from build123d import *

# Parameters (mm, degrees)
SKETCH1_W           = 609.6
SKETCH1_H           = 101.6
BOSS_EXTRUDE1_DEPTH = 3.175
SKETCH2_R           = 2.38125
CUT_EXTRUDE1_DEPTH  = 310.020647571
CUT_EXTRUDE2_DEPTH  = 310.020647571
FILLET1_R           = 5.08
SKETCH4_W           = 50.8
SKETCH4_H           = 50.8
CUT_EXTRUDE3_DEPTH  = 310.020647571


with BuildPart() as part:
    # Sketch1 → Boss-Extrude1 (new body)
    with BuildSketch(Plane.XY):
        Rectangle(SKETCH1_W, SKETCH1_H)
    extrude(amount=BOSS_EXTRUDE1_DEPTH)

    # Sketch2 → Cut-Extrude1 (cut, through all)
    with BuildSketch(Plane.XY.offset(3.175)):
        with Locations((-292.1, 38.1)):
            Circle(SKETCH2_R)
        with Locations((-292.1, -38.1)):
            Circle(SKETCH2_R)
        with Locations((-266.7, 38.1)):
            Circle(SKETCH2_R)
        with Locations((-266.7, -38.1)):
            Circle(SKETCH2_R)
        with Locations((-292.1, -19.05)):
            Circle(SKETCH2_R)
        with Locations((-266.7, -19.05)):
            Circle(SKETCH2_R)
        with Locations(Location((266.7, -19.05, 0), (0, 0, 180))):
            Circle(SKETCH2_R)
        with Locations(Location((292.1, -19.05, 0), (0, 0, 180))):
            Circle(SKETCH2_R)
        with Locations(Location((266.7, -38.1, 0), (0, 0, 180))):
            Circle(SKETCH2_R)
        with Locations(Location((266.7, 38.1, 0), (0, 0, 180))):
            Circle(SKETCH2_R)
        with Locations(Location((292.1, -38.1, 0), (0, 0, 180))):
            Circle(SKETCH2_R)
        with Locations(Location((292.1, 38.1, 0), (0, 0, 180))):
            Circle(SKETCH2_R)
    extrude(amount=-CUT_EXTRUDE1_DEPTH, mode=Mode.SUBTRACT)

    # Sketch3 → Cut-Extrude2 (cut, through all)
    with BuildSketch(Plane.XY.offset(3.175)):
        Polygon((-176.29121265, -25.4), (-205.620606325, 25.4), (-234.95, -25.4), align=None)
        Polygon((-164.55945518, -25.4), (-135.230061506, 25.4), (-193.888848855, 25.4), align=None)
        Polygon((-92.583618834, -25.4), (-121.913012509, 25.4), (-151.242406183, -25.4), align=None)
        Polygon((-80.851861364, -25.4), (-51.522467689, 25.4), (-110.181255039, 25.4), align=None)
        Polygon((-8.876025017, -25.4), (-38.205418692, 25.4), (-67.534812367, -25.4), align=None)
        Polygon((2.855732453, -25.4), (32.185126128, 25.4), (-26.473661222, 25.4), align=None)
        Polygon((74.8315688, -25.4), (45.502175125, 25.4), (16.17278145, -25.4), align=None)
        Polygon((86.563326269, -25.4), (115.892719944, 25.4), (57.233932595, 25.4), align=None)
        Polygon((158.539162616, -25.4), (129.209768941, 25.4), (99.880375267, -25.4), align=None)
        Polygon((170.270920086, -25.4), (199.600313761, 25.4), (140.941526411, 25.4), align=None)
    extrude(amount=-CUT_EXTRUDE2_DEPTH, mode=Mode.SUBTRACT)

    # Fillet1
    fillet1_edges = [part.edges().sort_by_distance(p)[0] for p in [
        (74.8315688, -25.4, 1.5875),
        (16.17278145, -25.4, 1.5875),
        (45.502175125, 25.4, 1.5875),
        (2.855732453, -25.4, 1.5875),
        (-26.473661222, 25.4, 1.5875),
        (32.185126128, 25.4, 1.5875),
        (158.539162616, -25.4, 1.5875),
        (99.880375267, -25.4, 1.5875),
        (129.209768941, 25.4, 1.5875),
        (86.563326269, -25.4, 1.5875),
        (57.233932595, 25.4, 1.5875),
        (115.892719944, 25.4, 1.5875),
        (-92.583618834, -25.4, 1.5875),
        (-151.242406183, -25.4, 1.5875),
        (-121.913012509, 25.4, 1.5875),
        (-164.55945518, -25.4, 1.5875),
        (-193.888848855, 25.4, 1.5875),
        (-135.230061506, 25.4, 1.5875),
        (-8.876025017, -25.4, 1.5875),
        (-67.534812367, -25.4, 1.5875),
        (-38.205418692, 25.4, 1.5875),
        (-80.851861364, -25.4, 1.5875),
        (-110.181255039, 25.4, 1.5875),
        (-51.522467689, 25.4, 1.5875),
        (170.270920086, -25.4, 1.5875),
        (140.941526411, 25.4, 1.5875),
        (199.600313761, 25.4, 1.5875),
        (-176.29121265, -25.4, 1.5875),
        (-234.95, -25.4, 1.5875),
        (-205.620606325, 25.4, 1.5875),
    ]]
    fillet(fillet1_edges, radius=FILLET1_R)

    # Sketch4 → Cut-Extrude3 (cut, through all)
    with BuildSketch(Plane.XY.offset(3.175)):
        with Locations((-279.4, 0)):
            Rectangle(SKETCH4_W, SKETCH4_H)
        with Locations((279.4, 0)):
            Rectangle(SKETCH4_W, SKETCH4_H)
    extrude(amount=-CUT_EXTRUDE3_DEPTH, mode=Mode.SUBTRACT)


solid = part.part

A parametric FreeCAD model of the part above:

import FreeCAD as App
import Part
import Sketcher
Q = App.Units.Quantity


def edges_at(feature, points):
    """Names of the edges that pass closest to the given points."""
    edges = feature.Shape.Edges
    near = lambda p: min(range(len(edges)), key=lambda i: edges[i].distToShape(Part.Vertex(*p))[0])
    return sorted({f"Edge{near(p) + 1}" for p in points})


def add_polygon(sketch, points):
    """Adds a closed chain of lines whose ends are joined by coincident constraints."""
    first, n = sketch.GeometryCount, len(points)
    for a, b in zip(points, points[1:] + points[:1]):
        sketch.addGeometry(Part.LineSegment(App.Vector(*a, 0), App.Vector(*b, 0)), False)
    for i in range(n):
        sketch.addConstraint(Sketcher.Constraint("Coincident", first + i, 2, first + (i + 1) % n, 1))

doc = App.newDocument("Part")
body = doc.addObject("PartDesign::Body", "Body")

sketch1 = doc.addObject("Sketcher::SketchObject", "Sketch")
body.addObject(sketch1)
sketch1.AttachmentSupport = (doc.XY_Plane, [""])
sketch1.MapMode = "FlatFace"
add_polygon(sketch1, [(-305, 51), (-305, -51), (305, -51), (305, 51)])
sketch1.addConstraint([
    Sketcher.Constraint("Vertical", 0),
    Sketcher.Constraint("Horizontal", 1),
    Sketcher.Constraint("Vertical", 2),
    Sketcher.Constraint("Horizontal", 3),
    Sketcher.Constraint("Symmetric", 0, 2, 2, 2, -1, 1),
    Sketcher.Constraint("DistanceX", 1, 1, 1, 2, Q("24 in")),
    Sketcher.Constraint("DistanceY", 0, 2, 0, 1, Q("4 in")),
])
pad1 = doc.addObject("PartDesign::Pad", "Pad")
body.addObject(pad1)
pad1.Profile = sketch1
pad1.Length = Q("0.125 in")

sketch2 = doc.addObject("Sketcher::SketchObject", "Sketch001")
body.addObject(sketch2)
sketch2.AttachmentSupport = (doc.XY_Plane, [""])
sketch2.MapMode = "FlatFace"
sketch2.AttachmentOffset = App.Placement(App.Vector(0, 0, 0.125 * 25.4), App.Rotation())
sketch2.addGeometry([
    Part.Circle(App.Vector(-292.1, 38.1, 0), App.Vector(0, 0, 1), 2.4),
    Part.Circle(App.Vector(-292.1, -38.1, 0), App.Vector(0, 0, 1), 2.4),
    Part.Circle(App.Vector(-266.7, 38.1, 0), App.Vector(0, 0, 1), 2.4),
    Part.Circle(App.Vector(-266.7, -38.1, 0), App.Vector(0, 0, 1), 2.4),
    Part.Circle(App.Vector(-292.1, -19.1, 0), App.Vector(0, 0, 1), 2.4),
    Part.Circle(App.Vector(-266.7, -19.1, 0), App.Vector(0, 0, 1), 2.4),
    Part.Circle(App.Vector(266.7, -19.1, 0), App.Vector(0, 0, 1), 2.4),
    Part.Circle(App.Vector(292.1, -19.1, 0), App.Vector(0, 0, 1), 2.4),
    Part.Circle(App.Vector(266.7, -38.1, 0), App.Vector(0, 0, 1), 2.4),
    Part.Circle(App.Vector(266.7, 38.1, 0), App.Vector(0, 0, 1), 2.4),
    Part.Circle(App.Vector(292.1, -38.1, 0), App.Vector(0, 0, 1), 2.4),
    Part.Circle(App.Vector(292.1, 38.1, 0), App.Vector(0, 0, 1), 2.4),
], False)
sketch2.addConstraint([
    Sketcher.Constraint("Equal", 0, 1),
    Sketcher.Constraint("Equal", 1, 2),
    Sketcher.Constraint("Equal", 2, 3),
    Sketcher.Constraint("Equal", 3, 4),
    Sketcher.Constraint("Equal", 4, 5),
    Sketcher.Constraint("Equal", 5, 6),
    Sketcher.Constraint("Equal", 6, 7),
    Sketcher.Constraint("Equal", 7, 8),
    Sketcher.Constraint("Equal", 8, 9),
    Sketcher.Constraint("Equal", 9, 10),
    Sketcher.Constraint("Equal", 10, 11),
    Sketcher.Constraint("Symmetric", 2, 3, 8, 3, -1, 1),
    Sketcher.Constraint("Symmetric", 3, 3, 9, 3, -1, 1),
    Sketcher.Constraint("Symmetric", 0, 3, 10, 3, -1, 1),
    Sketcher.Constraint("Symmetric", 1, 3, 11, 3, -1, 1),
    Sketcher.Constraint("Symmetric", 5, 3, 6, 3, -2),
    Sketcher.Constraint("Symmetric", 4, 3, 7, 3, -2),
    Sketcher.Constraint("Symmetric", 3, 3, 8, 3, -2),
    Sketcher.Constraint("Symmetric", 1, 3, 10, 3, -2),
    Sketcher.Constraint("Horizontal", 0, 3, 2, 3),
    Sketcher.Constraint("Horizontal", 4, 3, 5, 3),
    Sketcher.Constraint("Vertical", 1, 3, 4, 3),
    Sketcher.Constraint("Vertical", 3, 3, 5, 3),
    Sketcher.Constraint("Diameter", 0, Q("0.1875 in")),
    Sketcher.Constraint("DistanceY", 1, 3, 0, 3, Q("3 in")),
    Sketcher.Constraint("DistanceX", 0, 3, 2, 3, Q("1 in")),
    Sketcher.Constraint("DistanceX", 5, 3, 6, 3, Q("21 in")),
    Sketcher.Constraint("DistanceY", 4, 3, -1, 1, Q("0.75 in")),
])
pocket1 = doc.addObject("PartDesign::Pocket", "Pocket")
body.addObject(pocket1)
pocket1.Profile = sketch2
pocket1.Type = "ThroughAll"

sketch3 = doc.addObject("Sketcher::SketchObject", "Sketch002")
body.addObject(sketch3)
sketch3.AttachmentSupport = (doc.XY_Plane, [""])
sketch3.MapMode = "FlatFace"
sketch3.AttachmentOffset = App.Placement(App.Vector(0, 0, 0.125 * 25.4), App.Rotation())
add_polygon(sketch3, [(-176, -25), (-206, 25), (-235, -25)])
add_polygon(sketch3, [(-165, -25), (-135, 25), (-194, 25)])
add_polygon(sketch3, [(-93, -25), (-122, 25), (-151, -25)])
add_polygon(sketch3, [(-81, -25), (-52, 25), (-110, 25)])
add_polygon(sketch3, [(-9, -25), (-38, 25), (-68, -25)])
add_polygon(sketch3, [(3, -25), (32, 25), (-26, 25)])
add_polygon(sketch3, [(75, -25), (46, 25), (16, -25)])
add_polygon(sketch3, [(87, -25), (116, 25), (57, 25)])
add_polygon(sketch3, [(159, -25), (129, 25), (100, -25)])
add_polygon(sketch3, [(170, -25), (200, 25), (141, 25)])
sketch3.addConstraint([
    Sketcher.Constraint("Horizontal", 2),
    Sketcher.Constraint("Horizontal", 4),
    Sketcher.Constraint("Horizontal", 8),
    Sketcher.Constraint("Horizontal", 10),
    Sketcher.Constraint("Horizontal", 14),
    Sketcher.Constraint("Horizontal", 16),
    Sketcher.Constraint("Horizontal", 20),
    Sketcher.Constraint("Horizontal", 22),
    Sketcher.Constraint("Horizontal", 26),
    Sketcher.Constraint("Horizontal", 28),
    Sketcher.Constraint("Parallel", 1, 3),
    Sketcher.Constraint("Parallel", 0, 5),
    Sketcher.Constraint("Parallel", 5, 6),
    Sketcher.Constraint("Parallel", 3, 7),
    Sketcher.Constraint("Parallel", 7, 9),
    Sketcher.Constraint("Parallel", 6, 11),
    Sketcher.Constraint("Parallel", 11, 12),
    Sketcher.Constraint("Parallel", 9, 13),
    Sketcher.Constraint("Parallel", 13, 15),
    Sketcher.Constraint("Parallel", 12, 17),
    Sketcher.Constraint("Parallel", 17, 18),
    Sketcher.Constraint("Parallel", 15, 19),
    Sketcher.Constraint("Parallel", 19, 21),
    Sketcher.Constraint("Parallel", 18, 23),
    Sketcher.Constraint("Parallel", 23, 24),
    Sketcher.Constraint("Parallel", 21, 25),
    Sketcher.Constraint("Parallel", 25, 27),
    Sketcher.Constraint("Parallel", 24, 29),
    Sketcher.Constraint("Horizontal", 0, 2, 3, 2),
    Sketcher.Constraint("Horizontal", 2, 2, 5, 2),
    Sketcher.Constraint("Horizontal", 4, 2, 6, 2),
    Sketcher.Constraint("Horizontal", 5, 2, 7, 2),
    Sketcher.Constraint("Horizontal", 6, 2, 9, 2),
    Sketcher.Constraint("Horizontal", 8, 2, 11, 2),
    Sketcher.Constraint("Horizontal", 10, 2, 12, 2),
    Sketcher.Constraint("Horizontal", 11, 2, 13, 2),
    Sketcher.Constraint("Horizontal", 12, 2, 15, 2),
    Sketcher.Constraint("Horizontal", 14, 2, 17, 2),
    Sketcher.Constraint("Horizontal", 16, 2, 18, 2),
    Sketcher.Constraint("Horizontal", 17, 2, 19, 2),
    Sketcher.Constraint("Horizontal", 18, 2, 21, 2),
    Sketcher.Constraint("Horizontal", 20, 2, 23, 2),
    Sketcher.Constraint("Horizontal", 22, 2, 24, 2),
    Sketcher.Constraint("Horizontal", 23, 2, 25, 2),
    Sketcher.Constraint("Horizontal", 24, 2, 27, 2),
    Sketcher.Constraint("Horizontal", 26, 2, 29, 2),
    Sketcher.Constraint("Equal", 0, 1),
    Sketcher.Constraint("DistanceY", -1, 1, 0, 2, Q("1 in")),
    Sketcher.Constraint("DistanceY", 1, 2, -1, 1, Q("1 in")),
    Sketcher.Constraint("Angle", 0, Q("120 deg")),
    Sketcher.Constraint("DistanceX", 1, 2, -1, 1, Q("9.25 in")),
    Sketcher.Constraint("DistanceX", 2, 2, 6, 2, Q("54.3782 mm")),
    Sketcher.Constraint("DistanceX", 8, 2, 12, 2, Q("54.3782 mm")),
    Sketcher.Constraint("DistanceX", 14, 2, 18, 2, Q("54.3782 mm")),
    Sketcher.Constraint("DistanceX", 20, 2, 24, 2, Q("54.3782 mm")),
    Sketcher.Constraint("DistanceX", 3, 2, -1, 1, Q("135.230062 mm")),
    Sketcher.Constraint("DistanceX", 11, 2, -1, 1, Q("80.851861 mm")),
    Sketcher.Constraint("DistanceX", 16, 2, -1, 1, Q("26.473661 mm")),
    Sketcher.Constraint("DistanceX", -1, 1, 21, 2, Q("115.89272 mm")),
    Sketcher.Constraint("DistanceX", -1, 1, 29, 2, Q("170.27092 mm")),
])
pocket2 = doc.addObject("PartDesign::Pocket", "Pocket001")
body.addObject(pocket2)
pocket2.Profile = sketch3
pocket2.Type = "ThroughAll"
doc.recompute()

fillet = doc.addObject("PartDesign::Fillet", "Fillet")
body.addObject(fillet)
fillet.Base = (pocket2, edges_at(pocket2, [
    (74.832, -25.4, 1.587),
    (16.173, -25.4, 1.587),
    (45.502, 25.4, 1.587),
    (2.856, -25.4, 1.587),
    (-26.474, 25.4, 1.587),
    (32.185, 25.4, 1.587),
    (158.539, -25.4, 1.587),
    (99.88, -25.4, 1.587),
    (129.21, 25.4, 1.587),
    (86.563, -25.4, 1.587),
    (57.234, 25.4, 1.587),
    (115.893, 25.4, 1.587),
    (-92.584, -25.4, 1.587),
    (-151.242, -25.4, 1.587),
    (-121.913, 25.4, 1.587),
    (-164.559, -25.4, 1.587),
    (-193.889, 25.4, 1.587),
    (-135.23, 25.4, 1.587),
    (-8.876, -25.4, 1.587),
    (-67.535, -25.4, 1.587),
    (-38.205, 25.4, 1.587),
    (-80.852, -25.4, 1.587),
    (-110.181, 25.4, 1.587),
    (-51.522, 25.4, 1.587),
    (170.271, -25.4, 1.587),
    (140.942, 25.4, 1.587),
    (199.6, 25.4, 1.587),
    (-176.291, -25.4, 1.587),
    (-234.95, -25.4, 1.587),
    (-205.621, 25.4, 1.587),
]))
fillet.Radius = Q("0.2 in")

sketch4 = doc.addObject("Sketcher::SketchObject", "Sketch003")
body.addObject(sketch4)
sketch4.AttachmentSupport = (doc.XY_Plane, [""])
sketch4.MapMode = "FlatFace"
sketch4.AttachmentOffset = App.Placement(App.Vector(0, 0, 0.125 * 25.4), App.Rotation())
add_polygon(sketch4, [(-305, 25), (-305, -25), (-254, -25), (-254, 25)])
add_polygon(sketch4, [(254, 25), (254, -25), (305, -25), (305, 25)])
sketch4.addConstraint([
    Sketcher.Constraint("Vertical", 0),
    Sketcher.Constraint("Horizontal", 1),
    Sketcher.Constraint("Vertical", 2),
    Sketcher.Constraint("Horizontal", 3),
    Sketcher.Constraint("Vertical", 4),
    Sketcher.Constraint("Horizontal", 5),
    Sketcher.Constraint("Vertical", 6),
    Sketcher.Constraint("Horizontal", 7),
    Sketcher.Constraint("Symmetric", 2, 2, 4, 2, -1, 1),
    Sketcher.Constraint("Symmetric", 0, 2, 6, 2, -1, 1),
    Sketcher.Constraint("Horizontal", 1, 2, 4, 2),
    Sketcher.Constraint("Equal", 7, 0),
    Sketcher.Constraint("DistanceX", 1, 1, 1, 2, Q("2 in")),
    Sketcher.Constraint("DistanceX", 0, 2, -1, 1, Q("12 in")),
])
pocket3 = doc.addObject("PartDesign::Pocket", "Pocket002")
body.addObject(pocket3)
pocket3.Profile = sketch4
pocket3.Type = "ThroughAll"

doc.recompute()
